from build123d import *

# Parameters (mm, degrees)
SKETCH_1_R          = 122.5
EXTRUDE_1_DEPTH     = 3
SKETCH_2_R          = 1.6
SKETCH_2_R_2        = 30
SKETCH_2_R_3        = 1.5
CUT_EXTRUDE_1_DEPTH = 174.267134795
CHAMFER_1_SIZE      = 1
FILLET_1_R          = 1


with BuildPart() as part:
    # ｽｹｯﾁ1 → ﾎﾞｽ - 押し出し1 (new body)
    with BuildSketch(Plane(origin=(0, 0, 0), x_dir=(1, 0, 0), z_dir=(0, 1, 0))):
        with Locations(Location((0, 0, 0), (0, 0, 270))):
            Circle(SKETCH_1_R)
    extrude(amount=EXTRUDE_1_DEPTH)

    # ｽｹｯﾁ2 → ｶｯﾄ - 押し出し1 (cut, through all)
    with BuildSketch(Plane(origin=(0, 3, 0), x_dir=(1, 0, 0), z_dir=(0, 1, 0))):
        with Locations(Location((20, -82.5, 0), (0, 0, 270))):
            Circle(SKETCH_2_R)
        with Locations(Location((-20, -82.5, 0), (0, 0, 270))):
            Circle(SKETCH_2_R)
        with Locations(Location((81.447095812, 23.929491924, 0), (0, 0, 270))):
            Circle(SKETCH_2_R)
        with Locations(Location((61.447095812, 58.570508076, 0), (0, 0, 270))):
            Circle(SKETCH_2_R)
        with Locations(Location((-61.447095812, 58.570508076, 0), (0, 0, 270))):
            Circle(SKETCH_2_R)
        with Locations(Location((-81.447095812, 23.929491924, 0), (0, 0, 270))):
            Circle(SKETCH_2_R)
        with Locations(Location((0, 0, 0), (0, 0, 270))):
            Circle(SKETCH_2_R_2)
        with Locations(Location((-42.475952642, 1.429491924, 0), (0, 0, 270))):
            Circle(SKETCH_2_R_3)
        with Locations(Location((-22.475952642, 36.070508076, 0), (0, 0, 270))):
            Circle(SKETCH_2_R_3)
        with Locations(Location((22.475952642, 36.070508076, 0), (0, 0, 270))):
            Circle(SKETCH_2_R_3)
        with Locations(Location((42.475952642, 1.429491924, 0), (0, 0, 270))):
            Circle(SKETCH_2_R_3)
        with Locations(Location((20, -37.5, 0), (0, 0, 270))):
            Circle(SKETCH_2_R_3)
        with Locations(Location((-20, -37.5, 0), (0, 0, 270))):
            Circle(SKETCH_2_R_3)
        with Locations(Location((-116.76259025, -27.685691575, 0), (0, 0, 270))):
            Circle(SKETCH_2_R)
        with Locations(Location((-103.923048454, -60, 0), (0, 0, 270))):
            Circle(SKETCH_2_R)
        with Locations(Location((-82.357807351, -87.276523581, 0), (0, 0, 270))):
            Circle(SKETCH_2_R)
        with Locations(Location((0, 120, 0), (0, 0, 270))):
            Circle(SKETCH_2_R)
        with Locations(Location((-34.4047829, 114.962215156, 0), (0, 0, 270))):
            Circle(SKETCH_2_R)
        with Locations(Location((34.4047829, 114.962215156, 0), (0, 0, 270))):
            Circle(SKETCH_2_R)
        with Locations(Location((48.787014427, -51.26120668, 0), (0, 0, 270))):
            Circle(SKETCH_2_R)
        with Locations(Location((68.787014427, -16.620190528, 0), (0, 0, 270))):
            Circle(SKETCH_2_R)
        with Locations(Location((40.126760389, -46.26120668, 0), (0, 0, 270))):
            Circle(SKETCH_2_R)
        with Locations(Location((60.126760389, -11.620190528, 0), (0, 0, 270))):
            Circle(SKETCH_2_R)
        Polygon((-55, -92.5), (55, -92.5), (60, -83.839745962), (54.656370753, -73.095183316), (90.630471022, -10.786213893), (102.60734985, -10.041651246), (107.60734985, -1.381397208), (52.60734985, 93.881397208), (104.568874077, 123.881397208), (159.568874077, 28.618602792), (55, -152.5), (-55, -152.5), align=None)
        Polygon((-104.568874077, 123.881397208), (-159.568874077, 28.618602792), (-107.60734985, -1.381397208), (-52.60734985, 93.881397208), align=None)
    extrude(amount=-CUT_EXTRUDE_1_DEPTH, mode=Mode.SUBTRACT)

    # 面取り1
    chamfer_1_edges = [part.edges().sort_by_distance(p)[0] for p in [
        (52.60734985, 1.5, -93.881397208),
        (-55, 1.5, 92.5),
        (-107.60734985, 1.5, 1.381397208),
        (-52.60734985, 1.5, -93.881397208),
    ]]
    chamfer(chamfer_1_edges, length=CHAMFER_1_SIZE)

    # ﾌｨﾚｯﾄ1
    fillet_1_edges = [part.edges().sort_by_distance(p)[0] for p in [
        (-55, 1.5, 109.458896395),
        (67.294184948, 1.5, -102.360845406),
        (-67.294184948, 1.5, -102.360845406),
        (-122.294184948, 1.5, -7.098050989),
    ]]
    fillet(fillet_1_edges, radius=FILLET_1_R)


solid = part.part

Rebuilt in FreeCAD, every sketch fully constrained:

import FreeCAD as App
import Part
import Sketcher
from FreeCAD import Vector
Q = App.Units.Quantity


def edges_at(feature, points):
    """Names of the edges that pass closest to the given points."""
    edges = feature.Shape.Edges
    near = lambda p: min(range(len(edges)), key=lambda i: edges[i].distToShape(Part.Vertex(*p))[0])
    return sorted({f"Edge{near(p) + 1}" for p in points})

doc = App.newDocument("Part")
params = doc.addObject("Spreadsheet::Sheet", "Params")
for row, (alias, value) in enumerate([
    ("sketch1_diameter", "245 mm"),
    ("pad1_length", "3 mm"),
    ("sketch2_diameter", "60 mm"),
    ("sketch2_diameter2", "3 mm"),
    ("sketch2_diameter3", "3.2 mm"),
    ("sketch2_width", "110 mm"),
    ("sketch2_height", "60 mm"),
    ("chamfer_size", "1 mm"),
    ("fillet_radius", "1 mm"),
], start=1):
    params.set(f"A{row}", alias)
    params.set(f"B{row}", "=" + value)
    params.setAlias(f"B{row}", alias)

body = doc.addObject("PartDesign::Body", "Body")

sketch1 = body.newObject("Sketcher::SketchObject", "Sketch")
sketch1.AttachmentSupport = (doc.getObject("XZ_Plane"), [""])
sketch1.MapMode = "FlatFace"
sketch1.addGeometry(Part.Circle(Vector(0, 0, 0), Vector(0, 0, 1), 122), False)
sketch1.addConstraint([
    Sketcher.Constraint("Coincident", 0, 3, -1, 1),
    Sketcher.Constraint("Diameter", 0, Q("245 mm")),
])
sketch1.setExpression("Constraints[1]", "Params.sketch1_diameter")
pad1 = body.newObject("PartDesign::Pad", "Pad")
pad1.Profile = sketch1
pad1.setExpression("Length", "Params.pad1_length")
pad1.Reversed = True

sketch2 = body.newObject("Sketcher::SketchObject", "Sketch001")
sketch2.AttachmentSupport = (doc.getObject("XZ_Plane"), [""])
sketch2.MapMode = "FlatFace"
sketch2.AttachmentOffset = App.Placement(Vector(0, 0, -3), App.Rotation())
sketch2.addGeometry([
    Part.Circle(Vector(20, 82.5, 0), Vector(0, 0, 1), 1.6),
    Part.Circle(Vector(-20, 82.5, 0), Vector(0, 0, 1), 1.6),
    Part.Circle(Vector(81.4, -23.9, 0), Vector(0, 0, 1), 1.6),
    Part.Circle(Vector(61.4, -58.6, 0), Vector(0, 0, 1), 1.6),
    Part.Circle(Vector(-61.4, -58.6, 0), Vector(0, 0, 1), 1.6),
    Part.Circle(Vector(-81.4, -23.9, 0), Vector(0, 0, 1), 1.6),
    Part.Circle(Vector(0, 0, 0), Vector(0, 0, 1), 30),
    Part.Circle(Vector(-42.5, -1.4, 0), Vector(0, 0, 1), 1.5),
    Part.Circle(Vector(-22.5, -36.1, 0), Vector(0, 0, 1), 1.5),
    Part.Circle(Vector(22.5, -36.1, 0), Vector(0, 0, 1), 1.5),
    Part.Circle(Vector(42.5, -1.4, 0), Vector(0, 0, 1), 1.5),
    Part.Circle(Vector(20, 37.5, 0), Vector(0, 0, 1), 1.5),
    Part.Circle(Vector(-20, 37.5, 0), Vector(0, 0, 1), 1.5),
    Part.Circle(Vector(-116.8, 27.7, 0), Vector(0, 0, 1), 1.6),
    Part.Circle(Vector(-103.9, 60, 0), Vector(0, 0, 1), 1.6),
    Part.Circle(Vector(-82.4, 87.3, 0), Vector(0, 0, 1), 1.6),
    Part.Circle(Vector(0, -120, 0), Vector(0, 0, 1), 1.6),
    Part.Circle(Vector(-34.4, -115, 0), Vector(0, 0, 1), 1.6),
    Part.Circle(Vector(34.4, -115, 0), Vector(0, 0, 1), 1.6),
    Part.Circle(Vector(48.8, 51.3, 0), Vector(0, 0, 1), 1.6),
    Part.Circle(Vector(68.8, 16.6, 0), Vector(0, 0, 1), 1.6),
    Part.Circle(Vector(40.1, 46.3, 0), Vector(0, 0, 1), 1.6),
    Part.Circle(Vector(60.1, 11.6, 0), Vector(0, 0, 1), 1.6),
    Part.LineSegment(Vector(55, 92.5, 0), Vector(-55, 92.5, 0)),
    Part.LineSegment(Vector(-55, 92.5, 0), Vector(-55, 152.5, 0)),
    Part.LineSegment(Vector(-55, 152.5, 0), Vector(55, 152.5, 0)),
    Part.LineSegment(Vector(55, 152.5, 0), Vector(159.6, -28.6, 0)),
    Part.LineSegment(Vector(159.6, -28.6, 0), Vector(104.6, -123.9, 0)),
    Part.LineSegment(Vector(104.6, -123.9, 0), Vector(52.6, -93.9, 0)),
    Part.LineSegment(Vector(52.6, -93.9, 0), Vector(107.6, 1.4, 0)),
    Part.LineSegment(Vector(107.6, 1.4, 0), Vector(102.6, 10, 0)),
    Part.LineSegment(Vector(102.6, 10, 0), Vector(90.6, 10.8, 0)),
    Part.LineSegment(Vector(90.6, 10.8, 0), Vector(54.7, 73.1, 0)),
    Part.LineSegment(Vector(54.7, 73.1, 0), Vector(60, 83.8, 0)),
    Part.LineSegment(Vector(60, 83.8, 0), Vector(55, 92.5, 0)),
    Part.LineSegment(Vector(-104.6, -123.9, 0), Vector(-159.6, -28.6, 0)),
    Part.LineSegment(Vector(-159.6, -28.6, 0), Vector(-107.6, 1.4, 0)),
    Part.LineSegment(Vector(-107.6, 1.4, 0), Vector(-52.6, -93.9, 0)),
    Part.LineSegment(Vector(-52.6, -93.9, 0), Vector(-104.6, -123.9, 0)),
], False)
sketch2.addConstraint([
    Sketcher.Constraint("Coincident", 23, 2, 24, 1),
    Sketcher.Constraint("Coincident", 24, 2, 25, 1),
    Sketcher.Constraint("Coincident", 25, 2, 26, 1),
    Sketcher.Constraint("Coincident", 26, 2, 27, 1),
    Sketcher.Constraint("Coincident", 27, 2, 28, 1),
    Sketcher.Constraint("Coincident", 28, 2, 29, 1),
    Sketcher.Constraint("Coincident", 29, 2, 30, 1),
    Sketcher.Constraint("Coincident", 30, 2, 31, 1),
    Sketcher.Constraint("Coincident", 31, 2, 32, 1),
    Sketcher.Constraint("Coincident", 32, 2, 33, 1),
    Sketcher.Constraint("Coincident", 33, 2, 34, 1),
    Sketcher.Constraint("Coincident", 34, 2, 23, 1),
    Sketcher.Constraint("Coincident", 35, 2, 36, 1),
    Sketcher.Constraint("Coincident", 36, 2, 37, 1),
    Sketcher.Constraint("Coincident", 37, 2, 38, 1),
    Sketcher.Constraint("Coincident", 38, 2, 35, 1),
    Sketcher.Constraint("Horizontal", 23),
    Sketcher.Constraint("Vertical", 24),
    Sketcher.Constraint("Horizontal", 25),
    Sketcher.Constraint("Coincident", 6, 3, -1, 1),
    Sketcher.Constraint("Equal", 0, 1),
    Sketcher.Constraint("Equal", 1, 2),
    Sketcher.Constraint("Equal", 2, 3),
    Sketcher.Constraint("Equal", 3, 4),
    Sketcher.Constraint("Equal", 4, 5),
    Sketcher.Constraint("Equal", 7, 8),
    Sketcher.Constraint("Equal", 8, 9),
    Sketcher.Constraint("Equal", 9, 10),
    Sketcher.Constraint("Equal", 10, 11),
    Sketcher.Constraint("Equal", 11, 12),
    Sketcher.Constraint("Equal", 5, 13),
    Sketcher.Constraint("Equal", 13, 14),
    Sketcher.Constraint("Equal", 14, 15),
    Sketcher.Constraint("Equal", 15, 16),
    Sketcher.Constraint("Equal", 16, 17),
    Sketcher.Constraint("Equal", 17, 18),
    Sketcher.Constraint("Equal", 18, 19),
    Sketcher.Constraint("Equal", 19, 20),
    Sketcher.Constraint("Equal", 20, 21),
    Sketcher.Constraint("Equal", 21, 22),
    Sketcher.Constraint("Symmetric", 0, 3, 1, 3, -2),
    Sketcher.Constraint("Symmetric", 3, 3, 4, 3, -2),
    Sketcher.Constraint("Symmetric", 2, 3, 5, 3, -2),
    Sketcher.Constraint("Symmetric", 8, 3, 9, 3, -2),
    Sketcher.Constraint("Symmetric", 7, 3, 10, 3, -2),
    Sketcher.Constraint("Symmetric", 11, 3, 12, 3, -2),
    Sketcher.Constraint("Symmetric", 17, 3, 18, 3, -2),
    Sketcher.Constraint("Symmetric", 26, 2, 35, 2, -2),
    Sketcher.Constraint("Symmetric", 29, 2, 36, 2, -2),
    Sketcher.Constraint("Symmetric", 28, 2, 37, 2, -2),
    Sketcher.Constraint("Symmetric", 27, 2, 38, 2, -2),
    Sketcher.Constraint("PointOnObject", 16, 3, -2),
    Sketcher.Constraint("Perpendicular", 27, 28),
    Sketcher.Constraint("Perpendicular", 28, 29),
    Sketcher.Constraint("Parallel", 26, 30),
    Sketcher.Constraint("Parallel", 30, 32),
    Sketcher.Constraint("Parallel", 32, 34),
    Sketcher.Constraint("Parallel", 34, 35),
    Sketcher.Constraint("Perpendicular", 35, 36),
    Sketcher.Constraint("Vertical", 0, 3, 11, 3),
    Sketcher.Constraint("Vertical", 25, 2, 34, 2),
    Sketcher.Constraint("Equal", 31, 33),
    Sketcher.Constraint("Equal", 30, 34),
    Sketcher.Constraint("Diameter", 6, Q("60 mm")),
    Sketcher.Constraint("Diameter", 7, Q("3 mm")),
    Sketcher.Constraint("Diameter", 0, Q("3.2 mm")),
    Sketcher.Constraint("DistanceX", 23, 2, 23, 1, Q("110 mm")),
    Sketcher.Constraint("DistanceY", 24, 1, 24, 2, Q("60 mm")),
    Sketcher.Constraint("Angle", 26, Q("-60 deg")),
    Sketcher.Constraint("Distance", 27, Q("110 mm")),
    Sketcher.Constraint("Distance", 28, Q("60 mm")),
    Sketcher.Constraint("Distance", 30, Q("10 mm")),
    Sketcher.Constraint("Distance", 31, Q("12 mm")),
    Sketcher.Constraint("DistanceX", -1, 1, 0, 3, Q("20 mm")),
    Sketcher.Constraint("DistanceY", -1, 1, 14, 3, Q("60 mm")),
    Sketcher.Constraint("DistanceY", 16, 3, -1, 1, Q("120 mm")),
    Sketcher.Constraint("DistanceX", 23, 2, -1, 1, Q("55 mm")),
    Sketcher.Constraint("DistanceX", 3, 3, 2, 3, Q("20 mm")),
    Sketcher.Constraint("DistanceX", 7, 3, 8, 3, Q("20 mm")),
    Sketcher.Constraint("DistanceY", 11, 3, 0, 3, Q("45 mm")),
    Sketcher.Constraint("DistanceX", 19, 3, 20, 3, Q("20 mm")),
    Sketcher.Constraint("DistanceY", 21, 3, 19, 3, Q("5 mm")),
    Sketcher.Constraint("DistanceY", 22, 3, 20, 3, Q("5 mm")),
    Sketcher.Constraint("DistanceX", 21, 3, 22, 3, Q("20 mm")),
    Sketcher.Constraint("DistanceY", 1, 3, 23, 2, Q("10 mm")),
    Sketcher.Constraint("DistanceY", -1, 1, 0, 3, Q("82.5 mm")),
    Sketcher.Constraint("DistanceY", 5, 3, 7, 3, Q("22.5 mm")),
    Sketcher.Constraint("DistanceY", 4, 3, 8, 3, Q("22.5 mm")),
    Sketcher.Constraint("Distance", 32, Q("71.948201 mm")),
    Sketcher.Constraint("DistanceY", 4, 3, 13, 3, Q("86.2562 mm")),
    Sketcher.Constraint("DistanceY", 10, 3, 19, 3, Q("52.690699 mm")),
    Sketcher.Constraint("DistanceY", 9, 3, 20, 3, Q("52.690699 mm")),
    Sketcher.Constraint("DistanceX", 36, 2, 14, 3, Q("3.684301 mm")),
    Sketcher.Constraint("Distance", 26, Q("209.137748 mm")),
    Sketcher.Constraint("DistanceY", 2, 3, -1, 1, Q("23.929492 mm")),
    Sketcher.Constraint("DistanceY", 3, 3, -1, 1, Q("58.570508 mm")),
    Sketcher.Constraint("DistanceX", 13, 3, -1, 1, Q("116.76259 mm")),
    Sketcher.Constraint("DistanceX", -1, 1, 21, 3, Q("40.12676 mm")),
    Sketcher.Constraint("DistanceX", 4, 3, 3, 3, Q("122.894192 mm")),
    Sketcher.Constraint("DistanceX", 8, 3, 3, 3, Q("83.923048 mm")),
    Sketcher.Constraint("DistanceX", 14, 3, 15, 3, Q("21.565241 mm")),
    Sketcher.Constraint("DistanceX", 17, 3, 8, 3, Q("11.92883 mm")),
    Sketcher.Constraint("DistanceX", 10, 3, 19, 3, Q("6.311062 mm")),
    Sketcher.Constraint("DistanceY", -1, 1, 15, 3, Q("87.276524 mm")),
    Sketcher.Constraint("DistanceY", 17, 3, -1, 1, Q("114.962215 mm")),
])
sketch2.setExpression("Constraints[63]", "Params.sketch2_diameter")
sketch2.setExpression("Constraints[64]", "Params.sketch2_diameter2")
sketch2.setExpression("Constraints[65]", "Params.sketch2_diameter3")
sketch2.setExpression("Constraints[66]", "Params.sketch2_width")
sketch2.setExpression("Constraints[67]", "Params.sketch2_height")
pocket1 = body.newObject("PartDesign::Pocket", "Pocket")
pocket1.Profile = sketch2
pocket1.Type = "ThroughAll"
pocket1.Reversed = True
doc.recompute()

chamfer = body.newObject("PartDesign::Chamfer", "Chamfer")
chamfer.Base = (pocket1, edges_at(pocket1, [
    (52.607, 1.5, -93.881),
    (-55, 1.5, 92.5),
    (-107.607, 1.5, 1.381),
    (-52.607, 1.5, -93.881),
]))
chamfer.setExpression("Size", "Params.chamfer_size")
doc.recompute()

fillet = body.newObject("PartDesign::Fillet", "Fillet")
fillet.Base = (chamfer, edges_at(chamfer, [
    (-55, 1.5, 109.459),
    (67.294, 1.5, -102.361),
    (-67.294, 1.5, -102.361),
    (-122.294, 1.5, -7.098),
]))
fillet.setExpression("Radius", "Params.fillet_radius")

doc.recompute()
